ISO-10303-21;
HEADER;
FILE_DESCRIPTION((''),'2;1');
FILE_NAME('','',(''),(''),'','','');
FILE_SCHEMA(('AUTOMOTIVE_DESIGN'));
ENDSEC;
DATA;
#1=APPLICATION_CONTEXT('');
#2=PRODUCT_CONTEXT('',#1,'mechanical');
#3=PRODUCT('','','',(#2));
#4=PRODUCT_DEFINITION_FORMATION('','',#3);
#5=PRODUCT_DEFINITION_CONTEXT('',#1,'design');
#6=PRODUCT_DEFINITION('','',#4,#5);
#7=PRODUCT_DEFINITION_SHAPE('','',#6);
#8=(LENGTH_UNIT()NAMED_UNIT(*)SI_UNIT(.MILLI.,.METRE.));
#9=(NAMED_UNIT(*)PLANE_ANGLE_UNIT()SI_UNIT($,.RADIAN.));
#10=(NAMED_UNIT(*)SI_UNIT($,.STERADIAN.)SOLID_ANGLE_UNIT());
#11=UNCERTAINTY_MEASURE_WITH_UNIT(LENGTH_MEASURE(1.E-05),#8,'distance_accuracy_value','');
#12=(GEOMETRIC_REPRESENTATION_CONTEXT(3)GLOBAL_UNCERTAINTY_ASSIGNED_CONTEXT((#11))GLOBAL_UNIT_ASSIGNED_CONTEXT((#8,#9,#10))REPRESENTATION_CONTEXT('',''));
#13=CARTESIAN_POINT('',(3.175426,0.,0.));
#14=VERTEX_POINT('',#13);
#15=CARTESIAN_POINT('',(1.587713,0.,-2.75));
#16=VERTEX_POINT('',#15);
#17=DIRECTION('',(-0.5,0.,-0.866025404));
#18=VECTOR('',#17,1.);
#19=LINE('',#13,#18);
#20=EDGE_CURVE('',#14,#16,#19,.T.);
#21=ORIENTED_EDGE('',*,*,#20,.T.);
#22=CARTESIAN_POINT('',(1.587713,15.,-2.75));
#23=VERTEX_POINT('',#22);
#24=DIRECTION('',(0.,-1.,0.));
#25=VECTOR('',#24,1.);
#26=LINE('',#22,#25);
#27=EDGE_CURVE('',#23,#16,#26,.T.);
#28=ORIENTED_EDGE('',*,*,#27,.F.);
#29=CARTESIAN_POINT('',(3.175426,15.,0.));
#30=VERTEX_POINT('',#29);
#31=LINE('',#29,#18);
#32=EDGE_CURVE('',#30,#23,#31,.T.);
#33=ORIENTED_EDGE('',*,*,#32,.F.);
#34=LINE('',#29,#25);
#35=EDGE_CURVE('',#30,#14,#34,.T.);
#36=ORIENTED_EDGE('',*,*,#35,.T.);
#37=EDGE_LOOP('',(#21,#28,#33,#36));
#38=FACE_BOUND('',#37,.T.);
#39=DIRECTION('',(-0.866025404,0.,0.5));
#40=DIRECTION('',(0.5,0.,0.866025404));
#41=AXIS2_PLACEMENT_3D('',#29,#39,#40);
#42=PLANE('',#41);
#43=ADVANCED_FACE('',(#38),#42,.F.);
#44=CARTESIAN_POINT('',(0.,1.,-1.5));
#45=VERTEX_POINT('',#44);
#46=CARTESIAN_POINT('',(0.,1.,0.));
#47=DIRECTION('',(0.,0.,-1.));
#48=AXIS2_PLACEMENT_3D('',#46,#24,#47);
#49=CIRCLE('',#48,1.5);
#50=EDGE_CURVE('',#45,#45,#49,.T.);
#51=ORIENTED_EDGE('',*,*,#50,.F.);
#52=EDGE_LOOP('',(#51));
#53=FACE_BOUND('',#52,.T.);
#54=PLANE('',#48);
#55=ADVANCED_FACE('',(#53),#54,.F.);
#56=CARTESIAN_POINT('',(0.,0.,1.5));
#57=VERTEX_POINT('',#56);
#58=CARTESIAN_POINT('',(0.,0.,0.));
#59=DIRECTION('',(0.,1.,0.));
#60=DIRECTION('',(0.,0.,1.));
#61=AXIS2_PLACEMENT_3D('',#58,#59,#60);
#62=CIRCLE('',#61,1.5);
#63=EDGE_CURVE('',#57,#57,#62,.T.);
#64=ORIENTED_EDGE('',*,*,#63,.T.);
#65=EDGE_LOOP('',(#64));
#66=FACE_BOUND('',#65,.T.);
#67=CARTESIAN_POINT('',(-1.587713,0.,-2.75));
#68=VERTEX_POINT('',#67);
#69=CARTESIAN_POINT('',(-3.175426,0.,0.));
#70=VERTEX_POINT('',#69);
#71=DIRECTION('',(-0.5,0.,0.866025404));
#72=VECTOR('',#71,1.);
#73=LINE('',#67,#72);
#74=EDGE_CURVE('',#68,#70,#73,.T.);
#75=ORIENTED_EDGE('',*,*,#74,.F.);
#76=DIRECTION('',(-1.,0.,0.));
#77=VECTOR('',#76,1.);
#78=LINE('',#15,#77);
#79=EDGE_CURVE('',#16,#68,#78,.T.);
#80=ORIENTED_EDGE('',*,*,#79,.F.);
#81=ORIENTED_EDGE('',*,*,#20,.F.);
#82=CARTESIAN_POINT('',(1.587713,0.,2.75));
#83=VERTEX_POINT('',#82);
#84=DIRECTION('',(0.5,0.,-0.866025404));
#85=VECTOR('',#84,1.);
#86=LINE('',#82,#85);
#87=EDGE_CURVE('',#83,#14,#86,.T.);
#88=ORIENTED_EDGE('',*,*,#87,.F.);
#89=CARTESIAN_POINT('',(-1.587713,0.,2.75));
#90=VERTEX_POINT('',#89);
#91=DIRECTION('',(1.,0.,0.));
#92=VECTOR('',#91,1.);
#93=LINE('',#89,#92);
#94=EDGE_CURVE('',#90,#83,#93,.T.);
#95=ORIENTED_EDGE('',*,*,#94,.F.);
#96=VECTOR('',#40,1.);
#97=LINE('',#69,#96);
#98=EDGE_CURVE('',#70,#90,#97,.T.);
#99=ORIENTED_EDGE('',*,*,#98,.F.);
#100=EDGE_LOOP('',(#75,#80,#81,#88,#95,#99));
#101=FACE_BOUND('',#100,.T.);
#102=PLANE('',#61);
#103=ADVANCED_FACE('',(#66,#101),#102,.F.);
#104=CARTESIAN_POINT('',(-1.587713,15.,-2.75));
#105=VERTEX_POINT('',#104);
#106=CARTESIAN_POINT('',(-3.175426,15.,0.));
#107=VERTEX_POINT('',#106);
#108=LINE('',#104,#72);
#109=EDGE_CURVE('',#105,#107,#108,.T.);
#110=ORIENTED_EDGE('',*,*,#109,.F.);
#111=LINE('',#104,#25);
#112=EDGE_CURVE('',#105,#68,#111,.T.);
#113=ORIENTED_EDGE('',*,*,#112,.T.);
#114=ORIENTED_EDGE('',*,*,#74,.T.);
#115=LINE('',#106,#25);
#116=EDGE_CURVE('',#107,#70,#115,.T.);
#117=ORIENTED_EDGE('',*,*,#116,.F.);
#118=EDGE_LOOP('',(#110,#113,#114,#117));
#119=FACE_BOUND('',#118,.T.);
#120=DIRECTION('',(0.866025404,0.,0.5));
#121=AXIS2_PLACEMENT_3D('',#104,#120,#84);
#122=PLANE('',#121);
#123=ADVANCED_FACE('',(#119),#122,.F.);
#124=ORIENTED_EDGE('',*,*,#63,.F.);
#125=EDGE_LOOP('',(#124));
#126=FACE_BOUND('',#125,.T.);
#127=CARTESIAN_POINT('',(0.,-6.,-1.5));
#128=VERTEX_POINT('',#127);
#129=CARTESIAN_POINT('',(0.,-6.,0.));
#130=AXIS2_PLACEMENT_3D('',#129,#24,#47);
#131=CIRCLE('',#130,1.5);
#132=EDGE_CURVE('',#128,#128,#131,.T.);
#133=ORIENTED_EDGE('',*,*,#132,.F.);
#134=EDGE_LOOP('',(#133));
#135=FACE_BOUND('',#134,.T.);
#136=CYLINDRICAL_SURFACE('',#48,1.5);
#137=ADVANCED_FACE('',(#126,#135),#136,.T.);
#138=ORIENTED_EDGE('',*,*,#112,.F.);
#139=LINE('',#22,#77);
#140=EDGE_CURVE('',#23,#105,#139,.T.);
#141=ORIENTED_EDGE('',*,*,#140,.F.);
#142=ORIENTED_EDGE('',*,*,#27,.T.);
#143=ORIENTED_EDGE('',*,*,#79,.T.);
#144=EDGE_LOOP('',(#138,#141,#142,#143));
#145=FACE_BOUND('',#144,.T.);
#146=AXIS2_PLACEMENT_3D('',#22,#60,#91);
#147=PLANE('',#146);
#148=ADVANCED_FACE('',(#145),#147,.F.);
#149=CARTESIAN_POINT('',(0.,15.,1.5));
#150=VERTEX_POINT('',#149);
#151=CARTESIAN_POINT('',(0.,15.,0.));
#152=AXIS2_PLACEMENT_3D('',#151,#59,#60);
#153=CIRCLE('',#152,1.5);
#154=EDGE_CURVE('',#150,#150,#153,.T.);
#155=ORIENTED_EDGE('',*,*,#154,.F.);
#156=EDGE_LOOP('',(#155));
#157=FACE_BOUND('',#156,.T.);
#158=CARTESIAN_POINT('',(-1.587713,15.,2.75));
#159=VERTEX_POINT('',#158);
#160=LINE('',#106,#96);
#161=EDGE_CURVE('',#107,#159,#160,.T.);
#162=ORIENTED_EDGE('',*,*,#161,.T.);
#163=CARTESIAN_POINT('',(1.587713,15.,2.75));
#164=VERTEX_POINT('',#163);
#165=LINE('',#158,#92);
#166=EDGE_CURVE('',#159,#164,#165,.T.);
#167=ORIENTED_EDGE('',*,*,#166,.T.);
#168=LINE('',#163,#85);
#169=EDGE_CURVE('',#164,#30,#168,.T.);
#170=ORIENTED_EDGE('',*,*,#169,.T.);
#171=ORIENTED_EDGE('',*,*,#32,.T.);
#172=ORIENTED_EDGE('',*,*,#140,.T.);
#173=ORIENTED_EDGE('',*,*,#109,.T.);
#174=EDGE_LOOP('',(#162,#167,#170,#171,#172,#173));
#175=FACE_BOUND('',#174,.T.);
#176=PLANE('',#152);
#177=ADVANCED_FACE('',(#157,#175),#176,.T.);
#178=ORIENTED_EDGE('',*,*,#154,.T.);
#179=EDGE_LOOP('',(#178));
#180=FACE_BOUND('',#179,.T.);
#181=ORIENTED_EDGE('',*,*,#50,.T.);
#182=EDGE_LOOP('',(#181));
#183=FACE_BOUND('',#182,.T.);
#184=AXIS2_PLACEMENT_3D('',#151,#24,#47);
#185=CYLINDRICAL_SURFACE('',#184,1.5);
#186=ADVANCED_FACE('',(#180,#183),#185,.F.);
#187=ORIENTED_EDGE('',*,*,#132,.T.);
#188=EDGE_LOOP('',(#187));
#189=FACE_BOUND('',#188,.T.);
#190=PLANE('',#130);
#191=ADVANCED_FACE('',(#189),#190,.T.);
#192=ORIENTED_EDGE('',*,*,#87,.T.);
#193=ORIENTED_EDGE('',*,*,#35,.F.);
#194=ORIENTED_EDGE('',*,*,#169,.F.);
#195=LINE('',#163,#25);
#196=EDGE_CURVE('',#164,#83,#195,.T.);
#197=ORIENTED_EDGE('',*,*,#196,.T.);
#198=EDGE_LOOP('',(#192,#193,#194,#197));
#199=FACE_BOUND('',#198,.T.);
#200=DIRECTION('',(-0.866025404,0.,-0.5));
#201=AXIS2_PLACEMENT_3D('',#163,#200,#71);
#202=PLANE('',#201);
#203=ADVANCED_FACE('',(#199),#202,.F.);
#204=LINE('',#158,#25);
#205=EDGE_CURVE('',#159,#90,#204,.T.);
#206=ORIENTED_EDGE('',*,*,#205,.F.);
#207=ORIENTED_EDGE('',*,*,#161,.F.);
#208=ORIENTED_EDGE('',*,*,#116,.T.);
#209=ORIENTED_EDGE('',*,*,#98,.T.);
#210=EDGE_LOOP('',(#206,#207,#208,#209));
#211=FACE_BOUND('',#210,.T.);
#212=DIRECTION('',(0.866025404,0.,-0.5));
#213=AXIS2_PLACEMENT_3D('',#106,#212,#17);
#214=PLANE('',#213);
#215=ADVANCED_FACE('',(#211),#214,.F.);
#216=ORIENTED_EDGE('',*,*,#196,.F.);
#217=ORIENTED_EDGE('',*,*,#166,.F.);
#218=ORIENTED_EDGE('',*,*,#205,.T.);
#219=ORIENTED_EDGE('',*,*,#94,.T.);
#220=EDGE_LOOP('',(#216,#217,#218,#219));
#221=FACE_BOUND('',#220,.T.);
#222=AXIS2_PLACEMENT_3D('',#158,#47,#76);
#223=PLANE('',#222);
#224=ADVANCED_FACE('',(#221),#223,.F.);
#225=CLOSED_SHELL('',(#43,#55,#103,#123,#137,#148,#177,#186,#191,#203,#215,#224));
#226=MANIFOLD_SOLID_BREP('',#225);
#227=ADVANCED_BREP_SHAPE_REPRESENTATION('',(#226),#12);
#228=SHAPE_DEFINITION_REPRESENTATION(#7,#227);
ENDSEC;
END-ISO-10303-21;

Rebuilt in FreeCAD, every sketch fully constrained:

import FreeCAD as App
import Part
import Sketcher

V = App.Vector
Q = App.Units.Quantity

doc = App.newDocument("Part")
body = doc.addObject("PartDesign::Body", "Body")

# Sketch on XZ plane
sketch1 = body.newObject("Sketcher::SketchObject", "Sketch")
sketch1.AttachmentSupport = (doc.getObject("XZ_Plane"), [""])
sketch1.MapMode = "FlatFace"
sketch1.addGeometry(Part.LineSegment(V(1.6, -2.8, 0), V(-1.6, -2.8, 0)), False)
sketch1.addGeometry(Part.LineSegment(V(-1.6, -2.8, 0), V(-3.2, 0, 0)), False)
sketch1.addGeometry(Part.LineSegment(V(-3.2, 0, 0), V(-1.6, 2.8, 0)), False)
sketch1.addGeometry(Part.LineSegment(V(-1.6, 2.8, 0), V(1.6, 2.8, 0)), False)
sketch1.addGeometry(Part.LineSegment(V(1.6, 2.8, 0), V(3.2, 0, 0)), False)
sketch1.addGeometry(Part.LineSegment(V(3.2, 0, 0), V(1.6, -2.8, 0)), False)
sketch1.addGeometry(Part.Circle(V(0, 0, 0), V(0, 0, 1), 1.5), False)
sketch1.addConstraint(Sketcher.Constraint("Coincident", 0, 2, 1, 1))
sketch1.addConstraint(Sketcher.Constraint("Coincident", 1, 2, 2, 1))
sketch1.addConstraint(Sketcher.Constraint("Coincident", 2, 2, 3, 1))
sketch1.addConstraint(Sketcher.Constraint("Coincident", 3, 2, 4, 1))
sketch1.addConstraint(Sketcher.Constraint("Coincident", 4, 2, 5, 1))
sketch1.addConstraint(Sketcher.Constraint("Coincident", 5, 2, 0, 1))
sketch1.addConstraint(Sketcher.Constraint("Horizontal", 0))
sketch1.addConstraint(Sketcher.Constraint("Horizontal", 3))
sketch1.addConstraint(Sketcher.Constraint("Coincident", 6, 3, -1, 1))
sketch1.addConstraint(Sketcher.Constraint("Symmetric", 0, 2, 3, 2, -1, 1))
sketch1.addConstraint(Sketcher.Constraint("Symmetric", 1, 2, 4, 2, -1, 1))
sketch1.addConstraint(Sketcher.Constraint("PointOnObject", 1, 2, -1))
sketch1.addConstraint(Sketcher.Constraint("Parallel", 2, 5))
sketch1.addConstraint(Sketcher.Constraint("Vertical", 0, 2, 2, 2))
sketch1.addConstraint(Sketcher.Constraint("Diameter", 6, Q("3 mm")))
sketch1.addConstraint(Sketcher.Constraint("Angle", 1, Q("120 deg")))
sketch1.addConstraint(Sketcher.Constraint("DistanceY", 0, 2, 2, 2, Q("5.5 mm")))
sketch1.addConstraint(Sketcher.Constraint("DistanceX", 0, 2, 0, 1, Q("3.175426 mm")))
pad1 = body.newObject("PartDesign::Pad", "Pad")
pad1.Profile = sketch1
pad1.Length = 15
pad1.Reversed = True

# Sketch on XZ plane
sketch2 = body.newObject("Sketcher::SketchObject", "Sketch001")
sketch2.AttachmentSupport = (doc.getObject("XZ_Plane"), [""])
sketch2.MapMode = "FlatFace"
sketch2.addGeometry(Part.Circle(V(0, 0, 0), V(0, 0, 1), 1.5), False)
sketch2.addConstraint(Sketcher.Constraint("Coincident", 0, 3, -1, 1))
sketch2.addConstraint(Sketcher.Constraint("Diameter", 0, Q("3 mm")))
pad2 = body.newObject("PartDesign::Pad", "Pad001")
pad2.Profile = sketch2
pad2.Type = "TwoLengths"
pad2.Length = 6
pad2.Length2 = 1

doc.recompute()
